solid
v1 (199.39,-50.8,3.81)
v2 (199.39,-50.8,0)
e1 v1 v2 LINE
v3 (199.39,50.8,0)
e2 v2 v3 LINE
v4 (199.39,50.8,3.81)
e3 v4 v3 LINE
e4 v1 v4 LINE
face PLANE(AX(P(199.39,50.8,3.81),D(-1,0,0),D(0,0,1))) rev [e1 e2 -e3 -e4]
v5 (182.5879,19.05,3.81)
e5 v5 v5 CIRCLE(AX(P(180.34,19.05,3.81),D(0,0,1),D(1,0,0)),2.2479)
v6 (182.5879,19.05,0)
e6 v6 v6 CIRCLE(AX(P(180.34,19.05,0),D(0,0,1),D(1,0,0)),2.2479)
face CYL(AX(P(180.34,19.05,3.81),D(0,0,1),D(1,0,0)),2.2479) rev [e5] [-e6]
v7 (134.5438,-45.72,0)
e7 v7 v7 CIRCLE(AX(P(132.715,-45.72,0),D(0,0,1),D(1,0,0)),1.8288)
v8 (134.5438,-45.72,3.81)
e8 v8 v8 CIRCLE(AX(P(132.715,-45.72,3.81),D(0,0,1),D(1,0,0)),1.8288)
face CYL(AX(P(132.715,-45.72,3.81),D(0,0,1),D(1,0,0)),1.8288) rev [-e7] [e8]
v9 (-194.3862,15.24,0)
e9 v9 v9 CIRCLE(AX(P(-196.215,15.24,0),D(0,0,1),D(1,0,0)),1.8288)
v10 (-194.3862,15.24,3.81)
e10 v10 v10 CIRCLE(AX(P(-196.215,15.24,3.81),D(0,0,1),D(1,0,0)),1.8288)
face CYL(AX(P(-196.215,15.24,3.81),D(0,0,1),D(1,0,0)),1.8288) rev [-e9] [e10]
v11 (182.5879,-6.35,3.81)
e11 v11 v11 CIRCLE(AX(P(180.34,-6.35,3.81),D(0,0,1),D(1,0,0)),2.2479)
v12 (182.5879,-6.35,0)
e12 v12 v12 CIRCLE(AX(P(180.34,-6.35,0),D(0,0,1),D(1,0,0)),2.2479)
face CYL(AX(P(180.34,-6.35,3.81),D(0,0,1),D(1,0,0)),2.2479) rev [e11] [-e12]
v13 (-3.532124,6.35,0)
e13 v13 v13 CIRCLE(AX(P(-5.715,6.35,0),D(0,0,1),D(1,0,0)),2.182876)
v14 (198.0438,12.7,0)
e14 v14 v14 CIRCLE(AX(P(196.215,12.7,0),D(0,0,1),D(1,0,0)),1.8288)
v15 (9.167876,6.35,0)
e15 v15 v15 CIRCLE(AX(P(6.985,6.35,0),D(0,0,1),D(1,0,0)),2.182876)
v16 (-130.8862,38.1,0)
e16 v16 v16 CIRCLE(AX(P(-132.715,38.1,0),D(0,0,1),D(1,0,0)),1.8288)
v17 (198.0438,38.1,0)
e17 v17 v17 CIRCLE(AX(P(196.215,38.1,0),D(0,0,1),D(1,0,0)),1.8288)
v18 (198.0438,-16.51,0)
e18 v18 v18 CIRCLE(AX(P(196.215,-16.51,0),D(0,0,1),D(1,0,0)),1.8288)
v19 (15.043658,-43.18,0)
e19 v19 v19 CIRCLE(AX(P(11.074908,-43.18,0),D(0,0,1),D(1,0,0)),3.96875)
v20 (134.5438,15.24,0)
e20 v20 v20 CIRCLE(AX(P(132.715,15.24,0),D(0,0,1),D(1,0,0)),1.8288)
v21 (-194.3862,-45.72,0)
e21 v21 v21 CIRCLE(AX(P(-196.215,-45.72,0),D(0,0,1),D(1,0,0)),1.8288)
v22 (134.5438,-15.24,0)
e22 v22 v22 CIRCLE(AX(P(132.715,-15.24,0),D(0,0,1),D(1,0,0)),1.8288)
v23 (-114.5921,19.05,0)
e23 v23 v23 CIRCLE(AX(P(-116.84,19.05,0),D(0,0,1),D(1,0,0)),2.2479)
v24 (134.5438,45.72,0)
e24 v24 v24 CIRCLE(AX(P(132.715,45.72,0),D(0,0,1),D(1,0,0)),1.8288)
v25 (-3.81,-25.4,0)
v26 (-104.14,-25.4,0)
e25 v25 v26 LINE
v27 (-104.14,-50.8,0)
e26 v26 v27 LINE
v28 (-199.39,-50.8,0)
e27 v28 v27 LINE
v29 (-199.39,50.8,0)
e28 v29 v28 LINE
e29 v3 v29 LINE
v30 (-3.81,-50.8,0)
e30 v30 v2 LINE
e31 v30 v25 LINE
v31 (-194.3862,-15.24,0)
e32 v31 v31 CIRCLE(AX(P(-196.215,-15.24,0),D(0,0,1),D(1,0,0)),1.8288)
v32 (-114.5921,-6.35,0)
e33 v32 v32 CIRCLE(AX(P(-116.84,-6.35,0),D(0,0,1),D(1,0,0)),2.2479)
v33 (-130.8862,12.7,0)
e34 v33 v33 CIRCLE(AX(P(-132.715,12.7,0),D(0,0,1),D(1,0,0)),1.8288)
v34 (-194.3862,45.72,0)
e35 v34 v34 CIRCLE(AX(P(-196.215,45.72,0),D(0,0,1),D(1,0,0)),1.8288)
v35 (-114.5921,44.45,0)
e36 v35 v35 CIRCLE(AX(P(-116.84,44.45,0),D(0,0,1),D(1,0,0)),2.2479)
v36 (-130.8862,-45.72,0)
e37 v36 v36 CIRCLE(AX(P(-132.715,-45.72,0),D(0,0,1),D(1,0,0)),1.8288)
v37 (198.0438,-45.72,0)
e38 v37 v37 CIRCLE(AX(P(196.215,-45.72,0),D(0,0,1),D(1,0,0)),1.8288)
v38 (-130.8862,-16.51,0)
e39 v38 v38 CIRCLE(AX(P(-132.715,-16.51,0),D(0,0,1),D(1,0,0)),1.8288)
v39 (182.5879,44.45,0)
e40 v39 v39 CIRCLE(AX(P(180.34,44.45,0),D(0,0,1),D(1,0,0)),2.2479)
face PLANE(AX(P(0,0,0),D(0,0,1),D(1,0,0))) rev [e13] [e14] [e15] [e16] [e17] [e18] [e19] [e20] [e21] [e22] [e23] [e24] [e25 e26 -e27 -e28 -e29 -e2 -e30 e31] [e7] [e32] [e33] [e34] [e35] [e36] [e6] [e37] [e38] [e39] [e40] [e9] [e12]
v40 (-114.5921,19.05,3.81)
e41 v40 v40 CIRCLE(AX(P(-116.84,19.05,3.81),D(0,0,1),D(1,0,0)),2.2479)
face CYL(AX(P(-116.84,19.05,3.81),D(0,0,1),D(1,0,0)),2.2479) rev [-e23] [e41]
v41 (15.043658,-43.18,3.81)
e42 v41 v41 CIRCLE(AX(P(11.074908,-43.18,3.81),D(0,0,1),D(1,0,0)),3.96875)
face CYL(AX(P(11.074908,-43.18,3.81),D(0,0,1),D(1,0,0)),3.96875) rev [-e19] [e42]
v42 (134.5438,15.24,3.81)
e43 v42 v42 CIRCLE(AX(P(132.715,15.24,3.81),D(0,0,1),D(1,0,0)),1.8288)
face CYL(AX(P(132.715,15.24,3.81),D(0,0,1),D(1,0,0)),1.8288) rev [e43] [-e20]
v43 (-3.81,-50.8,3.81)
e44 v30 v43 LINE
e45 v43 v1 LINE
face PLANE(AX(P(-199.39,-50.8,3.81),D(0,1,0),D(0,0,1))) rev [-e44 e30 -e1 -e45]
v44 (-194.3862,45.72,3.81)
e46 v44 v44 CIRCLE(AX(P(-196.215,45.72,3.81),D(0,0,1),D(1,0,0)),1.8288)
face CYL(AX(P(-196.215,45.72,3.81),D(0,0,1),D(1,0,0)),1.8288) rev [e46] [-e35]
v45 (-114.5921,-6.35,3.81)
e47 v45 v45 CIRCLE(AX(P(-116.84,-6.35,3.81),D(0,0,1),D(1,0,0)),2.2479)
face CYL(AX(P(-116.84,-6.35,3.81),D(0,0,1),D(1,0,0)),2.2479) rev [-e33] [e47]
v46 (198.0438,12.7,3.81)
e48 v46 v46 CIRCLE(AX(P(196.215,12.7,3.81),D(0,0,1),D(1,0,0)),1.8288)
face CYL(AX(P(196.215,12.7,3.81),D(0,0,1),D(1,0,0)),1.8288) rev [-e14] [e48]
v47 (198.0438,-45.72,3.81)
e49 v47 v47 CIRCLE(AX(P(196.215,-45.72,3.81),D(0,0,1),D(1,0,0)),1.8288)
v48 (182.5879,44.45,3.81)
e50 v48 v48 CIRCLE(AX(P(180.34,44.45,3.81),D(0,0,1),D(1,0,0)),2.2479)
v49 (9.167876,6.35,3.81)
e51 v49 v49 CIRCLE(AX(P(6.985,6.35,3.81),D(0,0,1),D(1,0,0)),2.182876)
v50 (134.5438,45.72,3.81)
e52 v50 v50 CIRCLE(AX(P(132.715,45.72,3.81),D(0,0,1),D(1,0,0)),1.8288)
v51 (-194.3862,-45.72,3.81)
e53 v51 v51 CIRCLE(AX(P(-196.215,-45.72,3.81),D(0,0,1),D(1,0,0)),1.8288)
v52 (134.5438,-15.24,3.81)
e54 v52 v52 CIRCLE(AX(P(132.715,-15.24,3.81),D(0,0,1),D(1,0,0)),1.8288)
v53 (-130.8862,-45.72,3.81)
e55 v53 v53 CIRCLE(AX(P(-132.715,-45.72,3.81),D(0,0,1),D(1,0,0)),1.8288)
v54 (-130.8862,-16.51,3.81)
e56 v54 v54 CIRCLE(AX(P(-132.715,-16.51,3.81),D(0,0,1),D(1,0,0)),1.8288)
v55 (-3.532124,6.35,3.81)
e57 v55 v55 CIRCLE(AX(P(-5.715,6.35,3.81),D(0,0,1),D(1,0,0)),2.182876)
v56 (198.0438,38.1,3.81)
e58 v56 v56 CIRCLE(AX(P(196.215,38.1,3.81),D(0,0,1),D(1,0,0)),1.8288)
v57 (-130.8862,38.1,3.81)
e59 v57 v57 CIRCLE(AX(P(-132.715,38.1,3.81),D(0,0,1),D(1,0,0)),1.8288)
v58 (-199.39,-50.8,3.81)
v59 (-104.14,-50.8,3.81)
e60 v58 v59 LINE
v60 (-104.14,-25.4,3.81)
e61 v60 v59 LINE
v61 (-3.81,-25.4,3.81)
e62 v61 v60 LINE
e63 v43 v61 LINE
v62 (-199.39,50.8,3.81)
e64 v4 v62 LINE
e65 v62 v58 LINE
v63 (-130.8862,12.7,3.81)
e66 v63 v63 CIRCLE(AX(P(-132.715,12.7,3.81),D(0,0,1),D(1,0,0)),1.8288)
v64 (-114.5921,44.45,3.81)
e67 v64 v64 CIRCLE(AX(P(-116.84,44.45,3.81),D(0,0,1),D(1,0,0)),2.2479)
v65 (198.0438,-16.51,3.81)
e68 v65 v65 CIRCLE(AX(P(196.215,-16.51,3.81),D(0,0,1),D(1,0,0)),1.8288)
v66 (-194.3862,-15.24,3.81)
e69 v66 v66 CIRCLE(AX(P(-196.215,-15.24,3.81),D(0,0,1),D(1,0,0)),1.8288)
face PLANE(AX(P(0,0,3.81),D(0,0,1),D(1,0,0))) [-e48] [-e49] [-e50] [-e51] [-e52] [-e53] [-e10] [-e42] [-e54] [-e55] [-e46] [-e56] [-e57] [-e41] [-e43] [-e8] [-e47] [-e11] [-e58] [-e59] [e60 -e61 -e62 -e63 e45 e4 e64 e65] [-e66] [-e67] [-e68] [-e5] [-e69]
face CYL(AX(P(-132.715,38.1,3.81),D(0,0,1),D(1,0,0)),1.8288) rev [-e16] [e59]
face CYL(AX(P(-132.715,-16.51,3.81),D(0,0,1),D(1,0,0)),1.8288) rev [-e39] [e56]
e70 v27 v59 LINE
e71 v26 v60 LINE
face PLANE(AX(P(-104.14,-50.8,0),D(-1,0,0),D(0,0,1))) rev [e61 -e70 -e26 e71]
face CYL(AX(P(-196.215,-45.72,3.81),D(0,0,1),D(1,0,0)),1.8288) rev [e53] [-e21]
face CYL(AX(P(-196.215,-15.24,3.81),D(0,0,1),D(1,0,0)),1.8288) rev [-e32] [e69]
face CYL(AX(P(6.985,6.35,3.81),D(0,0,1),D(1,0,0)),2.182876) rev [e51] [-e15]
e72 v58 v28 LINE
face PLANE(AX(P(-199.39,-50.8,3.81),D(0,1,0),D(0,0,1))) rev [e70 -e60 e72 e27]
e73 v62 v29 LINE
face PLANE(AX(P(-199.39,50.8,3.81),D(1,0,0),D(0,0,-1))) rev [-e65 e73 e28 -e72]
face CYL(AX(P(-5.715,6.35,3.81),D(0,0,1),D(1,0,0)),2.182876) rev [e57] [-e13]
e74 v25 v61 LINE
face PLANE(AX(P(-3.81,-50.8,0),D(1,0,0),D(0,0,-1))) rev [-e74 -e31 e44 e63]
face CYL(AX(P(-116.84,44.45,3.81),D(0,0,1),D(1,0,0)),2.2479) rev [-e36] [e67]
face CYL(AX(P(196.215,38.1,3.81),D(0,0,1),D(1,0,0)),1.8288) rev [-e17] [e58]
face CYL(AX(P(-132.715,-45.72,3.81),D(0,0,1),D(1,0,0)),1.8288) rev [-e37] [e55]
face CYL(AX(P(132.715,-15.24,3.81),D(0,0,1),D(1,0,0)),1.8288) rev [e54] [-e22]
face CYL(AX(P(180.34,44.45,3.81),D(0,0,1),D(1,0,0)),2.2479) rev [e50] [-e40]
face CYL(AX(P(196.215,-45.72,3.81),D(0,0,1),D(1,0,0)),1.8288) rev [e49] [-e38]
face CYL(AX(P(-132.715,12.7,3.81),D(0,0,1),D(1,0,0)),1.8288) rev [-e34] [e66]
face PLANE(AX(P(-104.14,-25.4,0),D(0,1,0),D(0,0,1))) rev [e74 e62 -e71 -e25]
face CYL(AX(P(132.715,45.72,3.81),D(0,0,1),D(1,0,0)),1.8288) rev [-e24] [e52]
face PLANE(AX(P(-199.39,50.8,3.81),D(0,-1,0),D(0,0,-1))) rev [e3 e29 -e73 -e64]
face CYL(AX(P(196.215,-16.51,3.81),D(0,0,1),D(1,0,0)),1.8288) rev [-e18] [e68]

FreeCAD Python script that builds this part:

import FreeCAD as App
import Part
import Sketcher
Q = App.Units.Quantity

doc = App.newDocument("Part")
params = doc.addObject("Spreadsheet::Sheet", "Params")
for row, (alias, value) in enumerate([
    ("sketch1_height", "4 in"),
    ("sketch1_width", "15.7 in"),
    ("pad1_length", "0.15 in"),
    ("sketch2_height", "1 in"),
    ("sketch2_width", "3.95 in"),
    ("sketch3_diameter", "0.3125 in"),
    ("hole_diameter", "0.3125 in"),
    ("sketch4_diameter", "0.144 in"),
    ("hole2_diameter", "0.144 in"),
    ("sketch5_diameter", "0.177 in"),
    ("hole3_diameter", "0.177 in"),
    ("linearpattern_pitch", "12.95 in"),
    ("hole4_diameter", "4.365752 mm"),
    ("hole4_depth", "0.35 in"),
], start=1):
    params.set(f"A{row}", alias)
    params.set(f"B{row}", "=" + value)
    params.setAlias(f"B{row}", alias)

body = doc.addObject("PartDesign::Body", "Body")

# Sketch on XY plane
sketch1 = doc.addObject("Sketcher::SketchObject", "Sketch")
body.addObject(sketch1)
sketch1.AttachmentSupport = (doc.XY_Plane, [""])
sketch1.MapMode = "FlatFace"
sketch1.addGeometry([
    Part.LineSegment(App.Vector(-199, 51, 0), App.Vector(-199, -51, 0)),
    Part.LineSegment(App.Vector(-199, -51, 0), App.Vector(199, -51, 0)),
    Part.LineSegment(App.Vector(199, -51, 0), App.Vector(199, 51, 0)),
    Part.LineSegment(App.Vector(199, 51, 0), App.Vector(-199, 51, 0)),
], False)
sketch1.addConstraint([
    Sketcher.Constraint("Coincident", 0, 2, 1, 1),
    Sketcher.Constraint("Coincident", 1, 2, 2, 1),
    Sketcher.Constraint("Coincident", 2, 2, 3, 1),
    Sketcher.Constraint("Coincident", 3, 2, 0, 1),
    Sketcher.Constraint("Vertical", 0),
    Sketcher.Constraint("Horizontal", 1),
    Sketcher.Constraint("Vertical", 2),
    Sketcher.Constraint("Horizontal", 3),
    Sketcher.Constraint("Symmetric", 0, 2, 2, 2, -1, 1),
    Sketcher.Constraint("DistanceY", 0, 2, 0, 1, Q("4 in")),
    Sketcher.Constraint("DistanceX", 1, 1, 1, 2, Q("15.7 in")),
])
sketch1.setExpression("Constraints[9]", "Params.sketch1_height")
sketch1.setExpression("Constraints[10]", "Params.sketch1_width")
pad1 = doc.addObject("PartDesign::Pad", "Pad")
body.addObject(pad1)
pad1.Profile = sketch1
pad1.setExpression("Length", "Params.pad1_length")

# Sketch on XY plane
sketch2 = doc.addObject("Sketcher::SketchObject", "Sketch001")
body.addObject(sketch2)
sketch2.AttachmentSupport = (doc.XY_Plane, [""])
sketch2.MapMode = "FlatFace"
sketch2.AttachmentOffset = App.Placement(App.Vector(0, 0, 0.15 * 25.4), App.Rotation())
sketch2.addGeometry([
    Part.LineSegment(App.Vector(-104, -25, 0), App.Vector(-104, -51, 0)),
    Part.LineSegment(App.Vector(-104, -51, 0), App.Vector(-4, -51, 0)),
    Part.LineSegment(App.Vector(-4, -51, 0), App.Vector(-4, -25, 0)),
    Part.LineSegment(App.Vector(-4, -25, 0), App.Vector(-104, -25, 0)),
], False)
sketch2.addConstraint([
    Sketcher.Constraint("Coincident", 0, 2, 1, 1),
    Sketcher.Constraint("Coincident", 1, 2, 2, 1),
    Sketcher.Constraint("Coincident", 2, 2, 3, 1),
    Sketcher.Constraint("Coincident", 3, 2, 0, 1),
    Sketcher.Constraint("Vertical", 0),
    Sketcher.Constraint("Horizontal", 1),
    Sketcher.Constraint("Vertical", 2),
    Sketcher.Constraint("Horizontal", 3),
    Sketcher.Constraint("DistanceY", 0, 2, 0, 1, Q("1 in")),
    Sketcher.Constraint("DistanceY", 0, 2, -1, 1, Q("2 in")),
    Sketcher.Constraint("DistanceX", 1, 1, 1, 2, Q("3.95 in")),
    Sketcher.Constraint("DistanceX", 0, 2, -1, 1, Q("4.1 in")),
])
sketch2.setExpression("Constraints[8]", "Params.sketch2_height")
sketch2.setExpression("Constraints[10]", "Params.sketch2_width")
pocket1 = doc.addObject("PartDesign::Pocket", "Pocket")
body.addObject(pocket1)
pocket1.Profile = sketch2
pocket1.Type = "ThroughAll"

# Sketch on XY plane
sketch3 = doc.addObject("Sketcher::SketchObject", "Sketch002")
body.addObject(sketch3)
sketch3.AttachmentSupport = (doc.XY_Plane, [""])
sketch3.MapMode = "FlatFace"
sketch3.AttachmentOffset = App.Placement(App.Vector(0, 0, 0.15 * 25.4), App.Rotation())
sketch3.addGeometry(Part.Circle(App.Vector(11.1, -43.2, 0), App.Vector(0, 0, 1), 4), False)
sketch3.addConstraint([
    Sketcher.Constraint("Diameter", 0, Q("0.3125 in")),
    Sketcher.Constraint("DistanceY", 0, 3, -1, 1, Q("1.7 in")),
    Sketcher.Constraint("DistanceX", -1, 1, 0, 3, Q("11.074908 mm")),
])
sketch3.setExpression("Constraints[0]", "Params.sketch3_diameter")
doc.recompute()
hole = doc.addObject("PartDesign::Hole", "Hole")
body.addObject(hole)
hole.Profile = sketch3
hole.ThreadType = "None"
hole.setExpression("Diameter", "Params.hole_diameter")
hole.DepthType = "ThroughAll"

# Sketch on XY plane
sketch4 = doc.addObject("Sketcher::SketchObject", "Sketch003")
body.addObject(sketch4)
sketch4.AttachmentSupport = (doc.XY_Plane, [""])
sketch4.MapMode = "FlatFace"
sketch4.AttachmentOffset = App.Placement(App.Vector(0, 0, 0.15 * 25.4), App.Rotation())
sketch4.addGeometry([
    Part.Circle(App.Vector(132.7, -15.2, 0), App.Vector(0, 0, 1), 1.8),  # 0
    Part.Circle(App.Vector(196.2, -16.5, 0), App.Vector(0, 0, 1), 1.8),  # 1
    Part.Circle(App.Vector(196.2, 12.7, 0), App.Vector(0, 0, 1), 1.8),  # 2
    Part.Circle(App.Vector(196.2, 38.1, 0), App.Vector(0, 0, 1), 1.8),  # 3
    Part.Circle(App.Vector(132.7, 45.7, 0), App.Vector(0, 0, 1), 1.8),  # 4
    Part.Circle(App.Vector(132.7, 15.2, 0), App.Vector(0, 0, 1), 1.8),  # 5
    Part.Circle(App.Vector(132.7, -45.7, 0), App.Vector(0, 0, 1), 1.8),  # 6
    Part.Circle(App.Vector(196.2, -45.7, 0), App.Vector(0, 0, 1), 1.8),  # 7
], False)
sketch4.addConstraint([
    Sketcher.Constraint("Equal", 0, 1),
    Sketcher.Constraint("Equal", 1, 2),
    Sketcher.Constraint("Equal", 2, 3),
    Sketcher.Constraint("Equal", 3, 4),
    Sketcher.Constraint("Equal", 4, 5),
    Sketcher.Constraint("Equal", 5, 6),
    Sketcher.Constraint("Equal", 6, 7),
    Sketcher.Constraint("Symmetric", 0, 3, 5, 3, -1),
    Sketcher.Constraint("Symmetric", 4, 3, 6, 3, -1),
    Sketcher.Constraint("Horizontal", 6, 3, 7, 3),
    Sketcher.Constraint("Vertical", 1, 3, 2, 3),
    Sketcher.Constraint("Vertical", 2, 3, 3, 3),
    Sketcher.Constraint("Vertical", 0, 3, 4, 3),
    Sketcher.Constraint("Vertical", 3, 3, 7, 3),
    Sketcher.Constraint("Diameter", 0, Q("0.144 in")),
    Sketcher.Constraint("DistanceY", 2, 3, 3, 3, Q("1 in")),
    Sketcher.Constraint("DistanceY", 0, 3, -1, 1, Q("0.6 in")),
    Sketcher.Constraint("DistanceY", -1, 1, 2, 3, Q("0.5 in")),
    Sketcher.Constraint("DistanceY", -1, 1, 4, 3, Q("1.8 in")),
    Sketcher.Constraint("DistanceX", 0, 3, 1, 3, Q("2.5 in")),
    Sketcher.Constraint("DistanceY", 1, 3, -1, 1, Q("0.65 in")),
    Sketcher.Constraint("DistanceX", -1, 1, 0, 3, Q("5.225 in")),
])
sketch4.setExpression("Constraints[14]", "Params.sketch4_diameter")
doc.recompute()
hole2 = doc.addObject("PartDesign::Hole", "Hole001")
body.addObject(hole2)
hole2.Profile = sketch4
hole2.ThreadType = "None"
hole2.setExpression("Diameter", "Params.hole2_diameter")
hole2.DepthType = "ThroughAll"

# Sketch on XY plane
sketch5 = doc.addObject("Sketcher::SketchObject", "Sketch004")
body.addObject(sketch5)
sketch5.AttachmentSupport = (doc.XY_Plane, [""])
sketch5.MapMode = "FlatFace"
sketch5.AttachmentOffset = App.Placement(App.Vector(0, 0, 0.15 * 25.4), App.Rotation())
sketch5.addGeometry([
    Part.Circle(App.Vector(180.3, 44.5, 0), App.Vector(0, 0, 1), 2.2),  # 0
    Part.Circle(App.Vector(180.3, 19.1, 0), App.Vector(0, 0, 1), 2.2),  # 1
    Part.Circle(App.Vector(180.3, -6.3, 0), App.Vector(0, 0, 1), 2.2),  # 2
    Part.Circle(App.Vector(-116.8, 44.5, 0), App.Vector(0, 0, 1), 2.2),  # 3
    Part.Circle(App.Vector(-116.8, 19.1, 0), App.Vector(0, 0, 1), 2.2),  # 4
    Part.Circle(App.Vector(-116.8, -6.3, 0), App.Vector(0, 0, 1), 2.2),  # 5
], False)
sketch5.addConstraint([
    Sketcher.Constraint("Equal", 0, 1),
    Sketcher.Constraint("Equal", 1, 2),
    Sketcher.Constraint("Equal", 2, 3),
    Sketcher.Constraint("Equal", 3, 4),
    Sketcher.Constraint("Equal", 4, 5),
    Sketcher.Constraint("Horizontal", 0, 3, 3, 3),
    Sketcher.Constraint("Horizontal", 1, 3, 4, 3),
    Sketcher.Constraint("Horizontal", 2, 3, 5, 3),
    Sketcher.Constraint("Vertical", 0, 3, 1, 3),
    Sketcher.Constraint("Vertical", 1, 3, 2, 3),
    Sketcher.Constraint("Vertical", 3, 3, 4, 3),
    Sketcher.Constraint("Vertical", 4, 3, 5, 3),
    Sketcher.Constraint("Diameter", 0, Q("0.177 in")),
    Sketcher.Constraint("DistanceY", 1, 3, 0, 3, Q("1 in")),
    Sketcher.Constraint("DistanceY", 2, 3, 1, 3, Q("1 in")),
    Sketcher.Constraint("DistanceX", -1, 1, 0, 3, Q("7.1 in")),
    Sketcher.Constraint("DistanceX", 3, 3, -1, 1, Q("4.6 in")),
    Sketcher.Constraint("DistanceY", -1, 1, 0, 3, Q("1.75 in")),
])
sketch5.setExpression("Constraints[12]", "Params.sketch5_diameter")
doc.recompute()
hole3 = doc.addObject("PartDesign::Hole", "Hole002")
body.addObject(hole3)
hole3.Profile = sketch5
hole3.ThreadType = "None"
hole3.setExpression("Diameter", "Params.hole3_diameter")
hole3.DepthType = "ThroughAll"
doc.recompute()

linearpattern = doc.addObject("PartDesign::LinearPattern", "LinearPattern")
body.addObject(linearpattern)
linearpattern.Originals = [hole2]
linearpattern.Direction = (doc.X_Axis, [""])
linearpattern.Mode = "offset"
linearpattern.setExpression("Offset", "Params.linearpattern_pitch")
linearpattern.Occurrences = 2
linearpattern.Reversed = True
body.Tip = linearpattern

# Sketch on XY plane
sketch6 = doc.addObject("Sketcher::SketchObject", "Sketch005")
body.addObject(sketch6)
sketch6.AttachmentSupport = (doc.XY_Plane, [""])
sketch6.MapMode = "FlatFace"
sketch6.AttachmentOffset = App.Placement(App.Vector(0, 0, 0.15 * 25.4), App.Rotation())
sketch6.addGeometry([
    Part.Circle(App.Vector(-5.7, 6.3, 0), App.Vector(0, 0, 1), 2.2),
    Part.Circle(App.Vector(7, 6.3, 0), App.Vector(0, 0, 1), 2.2),
], False)
sketch6.addConstraint([
    Sketcher.Constraint("Equal", 0, 1),
    Sketcher.Constraint("Horizontal", 0, 3, 1, 3),
    Sketcher.Constraint("DistanceX", 0, 3, 1, 3, Q("0.5 in")),
    Sketcher.Constraint("DistanceY", -1, 1, 0, 3, Q("0.25 in")),
    Sketcher.Constraint("Diameter", 0, Q("4.365752 mm")),
    Sketcher.Constraint("DistanceX", 0, 3, -1, 1, Q("0.225 in")),
])
doc.recompute()
hole4 = doc.addObject("PartDesign::Hole", "Hole003")
body.addObject(hole4)
hole4.Profile = sketch6
hole4.ThreadType = "None"
hole4.setExpression("Diameter", "Params.hole4_diameter")
hole4.DepthType = "Dimension"
hole4.setExpression("Depth", "Params.hole4_depth")
hole4.DrillPoint = "Angled"
hole4.DrillPointAngle = 118

doc.recompute()
